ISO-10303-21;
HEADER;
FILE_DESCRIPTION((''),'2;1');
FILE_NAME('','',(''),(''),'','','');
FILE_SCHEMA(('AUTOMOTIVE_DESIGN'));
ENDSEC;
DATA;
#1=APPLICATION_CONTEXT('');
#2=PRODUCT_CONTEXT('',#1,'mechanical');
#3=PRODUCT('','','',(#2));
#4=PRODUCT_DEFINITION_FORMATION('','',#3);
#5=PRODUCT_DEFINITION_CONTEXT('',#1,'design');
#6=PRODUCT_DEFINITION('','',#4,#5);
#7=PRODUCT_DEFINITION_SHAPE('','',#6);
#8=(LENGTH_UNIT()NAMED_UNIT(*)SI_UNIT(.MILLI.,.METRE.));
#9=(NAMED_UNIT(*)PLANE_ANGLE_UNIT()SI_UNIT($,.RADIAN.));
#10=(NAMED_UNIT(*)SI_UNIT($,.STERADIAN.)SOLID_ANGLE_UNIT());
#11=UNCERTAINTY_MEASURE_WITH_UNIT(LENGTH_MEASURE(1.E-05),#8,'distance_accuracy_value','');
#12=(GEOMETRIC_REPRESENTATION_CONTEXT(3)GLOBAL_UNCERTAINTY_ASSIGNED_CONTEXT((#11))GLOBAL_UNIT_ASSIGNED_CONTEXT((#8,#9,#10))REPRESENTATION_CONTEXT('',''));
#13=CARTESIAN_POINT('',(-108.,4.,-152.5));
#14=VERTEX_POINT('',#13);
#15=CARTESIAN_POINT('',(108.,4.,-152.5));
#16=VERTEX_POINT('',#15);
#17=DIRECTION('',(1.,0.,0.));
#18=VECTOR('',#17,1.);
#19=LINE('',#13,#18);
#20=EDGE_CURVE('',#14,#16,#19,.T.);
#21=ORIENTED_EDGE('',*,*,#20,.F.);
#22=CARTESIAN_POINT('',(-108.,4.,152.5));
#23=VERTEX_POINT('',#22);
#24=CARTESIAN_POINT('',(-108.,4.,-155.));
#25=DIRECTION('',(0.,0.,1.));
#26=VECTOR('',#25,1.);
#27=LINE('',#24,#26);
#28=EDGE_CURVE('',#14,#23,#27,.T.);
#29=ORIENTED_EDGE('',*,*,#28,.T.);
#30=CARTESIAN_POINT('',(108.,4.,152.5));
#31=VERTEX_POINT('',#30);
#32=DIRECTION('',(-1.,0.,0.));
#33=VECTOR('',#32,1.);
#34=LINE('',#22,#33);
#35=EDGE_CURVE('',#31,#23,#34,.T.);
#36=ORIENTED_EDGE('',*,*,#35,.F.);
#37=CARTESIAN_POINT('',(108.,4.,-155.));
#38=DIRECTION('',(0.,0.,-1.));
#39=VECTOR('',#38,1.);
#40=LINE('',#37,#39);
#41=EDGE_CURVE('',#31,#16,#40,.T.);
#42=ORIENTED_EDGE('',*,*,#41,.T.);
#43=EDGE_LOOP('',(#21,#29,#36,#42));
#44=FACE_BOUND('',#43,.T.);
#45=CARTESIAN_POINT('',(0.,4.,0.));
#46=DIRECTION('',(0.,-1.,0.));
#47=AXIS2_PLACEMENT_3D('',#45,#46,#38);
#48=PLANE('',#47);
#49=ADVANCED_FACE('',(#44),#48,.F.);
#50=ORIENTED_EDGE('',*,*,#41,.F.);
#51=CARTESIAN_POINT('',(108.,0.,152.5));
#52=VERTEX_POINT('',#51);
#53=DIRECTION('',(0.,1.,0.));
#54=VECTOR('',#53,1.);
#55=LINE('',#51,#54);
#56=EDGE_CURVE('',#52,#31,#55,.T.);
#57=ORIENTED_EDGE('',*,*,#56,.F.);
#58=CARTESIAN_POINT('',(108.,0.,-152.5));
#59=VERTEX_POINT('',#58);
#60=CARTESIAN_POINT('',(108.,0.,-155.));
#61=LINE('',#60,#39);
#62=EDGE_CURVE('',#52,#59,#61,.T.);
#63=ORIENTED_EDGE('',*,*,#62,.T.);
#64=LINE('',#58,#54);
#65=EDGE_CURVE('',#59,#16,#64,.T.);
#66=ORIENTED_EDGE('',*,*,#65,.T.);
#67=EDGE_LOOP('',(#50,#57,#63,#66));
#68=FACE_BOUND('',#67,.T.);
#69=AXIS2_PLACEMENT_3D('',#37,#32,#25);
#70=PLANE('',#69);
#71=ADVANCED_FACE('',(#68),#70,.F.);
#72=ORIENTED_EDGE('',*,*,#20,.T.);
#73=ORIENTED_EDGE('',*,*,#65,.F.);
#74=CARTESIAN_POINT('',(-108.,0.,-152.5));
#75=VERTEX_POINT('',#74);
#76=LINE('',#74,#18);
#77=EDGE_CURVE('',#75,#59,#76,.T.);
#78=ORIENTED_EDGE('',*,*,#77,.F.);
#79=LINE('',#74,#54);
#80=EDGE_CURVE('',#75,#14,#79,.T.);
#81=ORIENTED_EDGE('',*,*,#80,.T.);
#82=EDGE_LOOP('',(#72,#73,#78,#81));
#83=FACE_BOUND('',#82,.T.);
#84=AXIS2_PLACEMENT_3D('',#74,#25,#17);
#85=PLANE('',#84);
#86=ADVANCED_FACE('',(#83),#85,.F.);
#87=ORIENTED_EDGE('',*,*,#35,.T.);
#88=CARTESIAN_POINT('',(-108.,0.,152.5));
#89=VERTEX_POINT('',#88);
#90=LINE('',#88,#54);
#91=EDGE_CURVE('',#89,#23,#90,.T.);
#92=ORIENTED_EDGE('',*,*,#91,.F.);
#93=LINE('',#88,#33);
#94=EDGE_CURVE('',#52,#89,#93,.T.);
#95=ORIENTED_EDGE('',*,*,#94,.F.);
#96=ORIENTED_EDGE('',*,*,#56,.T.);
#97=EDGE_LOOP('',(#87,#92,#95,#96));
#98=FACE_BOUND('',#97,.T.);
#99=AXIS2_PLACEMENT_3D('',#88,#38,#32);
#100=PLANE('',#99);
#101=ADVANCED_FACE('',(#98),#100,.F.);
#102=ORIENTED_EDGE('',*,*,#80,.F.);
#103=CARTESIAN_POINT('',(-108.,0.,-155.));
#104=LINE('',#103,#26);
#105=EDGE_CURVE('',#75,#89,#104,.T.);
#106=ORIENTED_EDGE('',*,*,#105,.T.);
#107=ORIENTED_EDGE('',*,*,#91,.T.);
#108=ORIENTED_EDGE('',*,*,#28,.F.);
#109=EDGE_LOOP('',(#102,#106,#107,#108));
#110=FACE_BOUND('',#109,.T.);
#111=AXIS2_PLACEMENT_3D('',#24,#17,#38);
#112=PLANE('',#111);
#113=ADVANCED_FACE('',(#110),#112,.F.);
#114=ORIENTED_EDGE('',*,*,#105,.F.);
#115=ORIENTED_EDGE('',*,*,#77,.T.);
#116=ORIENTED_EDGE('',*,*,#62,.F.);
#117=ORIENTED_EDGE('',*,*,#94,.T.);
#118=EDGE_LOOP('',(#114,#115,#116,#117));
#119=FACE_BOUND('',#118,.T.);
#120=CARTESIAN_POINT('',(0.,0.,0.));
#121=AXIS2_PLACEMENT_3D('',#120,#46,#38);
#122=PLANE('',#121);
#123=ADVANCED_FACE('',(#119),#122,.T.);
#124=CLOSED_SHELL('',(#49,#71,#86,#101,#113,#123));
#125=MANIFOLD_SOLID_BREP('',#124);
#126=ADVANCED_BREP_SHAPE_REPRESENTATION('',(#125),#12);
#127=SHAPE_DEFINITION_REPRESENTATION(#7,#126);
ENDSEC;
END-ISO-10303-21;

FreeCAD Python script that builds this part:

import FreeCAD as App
import Part
import Sketcher


def add_polygon(sketch, points):
    """Adds a closed chain of lines whose ends are joined by coincident constraints."""
    first, n = sketch.GeometryCount, len(points)
    for a, b in zip(points, points[1:] + points[:1]):
        sketch.addGeometry(Part.LineSegment(App.Vector(*a, 0), App.Vector(*b, 0)), False)
    for i in range(n):
        sketch.addConstraint(Sketcher.Constraint("Coincident", first + i, 2, first + (i + 1) % n, 1))

doc = App.newDocument("Part")
params = doc.addObject("Spreadsheet::Sheet", "Params")
for row, (alias, value) in enumerate([
    ("sketch1_width", "216 mm"),
    ("sketch1_height", "310 mm"),
    ("pad1_length", "4 mm"),
    ("sketch2_width", "216 mm"),
    ("sketch2_height", "2.5 mm"),
    ("pocket1_length", "4 mm"),
], start=1):
    params.set(f"A{row}", alias)
    params.set(f"B{row}", "=" + value)
    params.setAlias(f"B{row}", alias)

body = doc.addObject("PartDesign::Body", "Body")

sketch1 = doc.addObject("Sketcher::SketchObject", "Sketch")
body.addObject(sketch1)
sketch1.AttachmentSupport = (doc.XZ_Plane, [""])
sketch1.MapMode = "FlatFace"
add_polygon(sketch1, [(-108, -155), (-108, 155), (108, 155), (108, -155)])
sketch1.addConstraint([
    Sketcher.Constraint("Vertical", 0),
    Sketcher.Constraint("Horizontal", 1),
    Sketcher.Constraint("Vertical", 2),
    Sketcher.Constraint("Horizontal", 3),
    Sketcher.Constraint("Symmetric", 0, 2, 2, 2, -1, 1),
    Sketcher.Constraint("DistanceX", 1, 1, 1, 2, 216.0),
    Sketcher.Constraint("DistanceY", 0, 1, 0, 2, 310.0),
])
sketch1.setExpression("Constraints[9]", "Params.sketch1_width")
sketch1.setExpression("Constraints[10]", "Params.sketch1_height")
pad1 = doc.addObject("PartDesign::Pad", "Pad")
body.addObject(pad1)
pad1.Profile = sketch1
pad1.setExpression("Length", "Params.pad1_length")
pad1.Reversed = True

sketch2 = doc.addObject("Sketcher::SketchObject", "Sketch001")
body.addObject(sketch2)
sketch2.AttachmentSupport = (doc.XZ_Plane, [""])
sketch2.MapMode = "FlatFace"
sketch2.AttachmentOffset = App.Placement(App.Vector(0, 0, -4), App.Rotation())
add_polygon(sketch2, [(-108, -155), (-108, -152.5), (108, -152.5), (108, -155)])
add_polygon(sketch2, [(-108, 152.5), (-108, 155), (108, 155), (108, 152.5)])
sketch2.addConstraint([
    Sketcher.Constraint("Vertical", 0),
    Sketcher.Constraint("Horizontal", 1),
    Sketcher.Constraint("Vertical", 2),
    Sketcher.Constraint("Horizontal", 3),
    Sketcher.Constraint("Vertical", 4),
    Sketcher.Constraint("Horizontal", 5),
    Sketcher.Constraint("Vertical", 6),
    Sketcher.Constraint("Horizontal", 7),
    Sketcher.Constraint("Symmetric", 2, 2, 4, 2, -1, 1),
    Sketcher.Constraint("Symmetric", 0, 2, 6, 2, -1, 1),
    Sketcher.Constraint("Vertical", 3, 2, 4, 2),
    Sketcher.Constraint("DistanceX", 1, 1, 1, 2, 216.0),
    Sketcher.Constraint("DistanceY", 0, 1, 0, 2, 2.5),
    Sketcher.Constraint("DistanceY", 2, 2, -1, 1, 155.0),
])
sketch2.setExpression("Constraints[19]", "Params.sketch2_width")
sketch2.setExpression("Constraints[20]", "Params.sketch2_height")
pocket1 = doc.addObject("PartDesign::Pocket", "Pocket")
body.addObject(pocket1)
pocket1.Profile = sketch2
pocket1.setExpression("Length", "Params.pocket1_length")
pocket1.Reversed = True

doc.recompute()
